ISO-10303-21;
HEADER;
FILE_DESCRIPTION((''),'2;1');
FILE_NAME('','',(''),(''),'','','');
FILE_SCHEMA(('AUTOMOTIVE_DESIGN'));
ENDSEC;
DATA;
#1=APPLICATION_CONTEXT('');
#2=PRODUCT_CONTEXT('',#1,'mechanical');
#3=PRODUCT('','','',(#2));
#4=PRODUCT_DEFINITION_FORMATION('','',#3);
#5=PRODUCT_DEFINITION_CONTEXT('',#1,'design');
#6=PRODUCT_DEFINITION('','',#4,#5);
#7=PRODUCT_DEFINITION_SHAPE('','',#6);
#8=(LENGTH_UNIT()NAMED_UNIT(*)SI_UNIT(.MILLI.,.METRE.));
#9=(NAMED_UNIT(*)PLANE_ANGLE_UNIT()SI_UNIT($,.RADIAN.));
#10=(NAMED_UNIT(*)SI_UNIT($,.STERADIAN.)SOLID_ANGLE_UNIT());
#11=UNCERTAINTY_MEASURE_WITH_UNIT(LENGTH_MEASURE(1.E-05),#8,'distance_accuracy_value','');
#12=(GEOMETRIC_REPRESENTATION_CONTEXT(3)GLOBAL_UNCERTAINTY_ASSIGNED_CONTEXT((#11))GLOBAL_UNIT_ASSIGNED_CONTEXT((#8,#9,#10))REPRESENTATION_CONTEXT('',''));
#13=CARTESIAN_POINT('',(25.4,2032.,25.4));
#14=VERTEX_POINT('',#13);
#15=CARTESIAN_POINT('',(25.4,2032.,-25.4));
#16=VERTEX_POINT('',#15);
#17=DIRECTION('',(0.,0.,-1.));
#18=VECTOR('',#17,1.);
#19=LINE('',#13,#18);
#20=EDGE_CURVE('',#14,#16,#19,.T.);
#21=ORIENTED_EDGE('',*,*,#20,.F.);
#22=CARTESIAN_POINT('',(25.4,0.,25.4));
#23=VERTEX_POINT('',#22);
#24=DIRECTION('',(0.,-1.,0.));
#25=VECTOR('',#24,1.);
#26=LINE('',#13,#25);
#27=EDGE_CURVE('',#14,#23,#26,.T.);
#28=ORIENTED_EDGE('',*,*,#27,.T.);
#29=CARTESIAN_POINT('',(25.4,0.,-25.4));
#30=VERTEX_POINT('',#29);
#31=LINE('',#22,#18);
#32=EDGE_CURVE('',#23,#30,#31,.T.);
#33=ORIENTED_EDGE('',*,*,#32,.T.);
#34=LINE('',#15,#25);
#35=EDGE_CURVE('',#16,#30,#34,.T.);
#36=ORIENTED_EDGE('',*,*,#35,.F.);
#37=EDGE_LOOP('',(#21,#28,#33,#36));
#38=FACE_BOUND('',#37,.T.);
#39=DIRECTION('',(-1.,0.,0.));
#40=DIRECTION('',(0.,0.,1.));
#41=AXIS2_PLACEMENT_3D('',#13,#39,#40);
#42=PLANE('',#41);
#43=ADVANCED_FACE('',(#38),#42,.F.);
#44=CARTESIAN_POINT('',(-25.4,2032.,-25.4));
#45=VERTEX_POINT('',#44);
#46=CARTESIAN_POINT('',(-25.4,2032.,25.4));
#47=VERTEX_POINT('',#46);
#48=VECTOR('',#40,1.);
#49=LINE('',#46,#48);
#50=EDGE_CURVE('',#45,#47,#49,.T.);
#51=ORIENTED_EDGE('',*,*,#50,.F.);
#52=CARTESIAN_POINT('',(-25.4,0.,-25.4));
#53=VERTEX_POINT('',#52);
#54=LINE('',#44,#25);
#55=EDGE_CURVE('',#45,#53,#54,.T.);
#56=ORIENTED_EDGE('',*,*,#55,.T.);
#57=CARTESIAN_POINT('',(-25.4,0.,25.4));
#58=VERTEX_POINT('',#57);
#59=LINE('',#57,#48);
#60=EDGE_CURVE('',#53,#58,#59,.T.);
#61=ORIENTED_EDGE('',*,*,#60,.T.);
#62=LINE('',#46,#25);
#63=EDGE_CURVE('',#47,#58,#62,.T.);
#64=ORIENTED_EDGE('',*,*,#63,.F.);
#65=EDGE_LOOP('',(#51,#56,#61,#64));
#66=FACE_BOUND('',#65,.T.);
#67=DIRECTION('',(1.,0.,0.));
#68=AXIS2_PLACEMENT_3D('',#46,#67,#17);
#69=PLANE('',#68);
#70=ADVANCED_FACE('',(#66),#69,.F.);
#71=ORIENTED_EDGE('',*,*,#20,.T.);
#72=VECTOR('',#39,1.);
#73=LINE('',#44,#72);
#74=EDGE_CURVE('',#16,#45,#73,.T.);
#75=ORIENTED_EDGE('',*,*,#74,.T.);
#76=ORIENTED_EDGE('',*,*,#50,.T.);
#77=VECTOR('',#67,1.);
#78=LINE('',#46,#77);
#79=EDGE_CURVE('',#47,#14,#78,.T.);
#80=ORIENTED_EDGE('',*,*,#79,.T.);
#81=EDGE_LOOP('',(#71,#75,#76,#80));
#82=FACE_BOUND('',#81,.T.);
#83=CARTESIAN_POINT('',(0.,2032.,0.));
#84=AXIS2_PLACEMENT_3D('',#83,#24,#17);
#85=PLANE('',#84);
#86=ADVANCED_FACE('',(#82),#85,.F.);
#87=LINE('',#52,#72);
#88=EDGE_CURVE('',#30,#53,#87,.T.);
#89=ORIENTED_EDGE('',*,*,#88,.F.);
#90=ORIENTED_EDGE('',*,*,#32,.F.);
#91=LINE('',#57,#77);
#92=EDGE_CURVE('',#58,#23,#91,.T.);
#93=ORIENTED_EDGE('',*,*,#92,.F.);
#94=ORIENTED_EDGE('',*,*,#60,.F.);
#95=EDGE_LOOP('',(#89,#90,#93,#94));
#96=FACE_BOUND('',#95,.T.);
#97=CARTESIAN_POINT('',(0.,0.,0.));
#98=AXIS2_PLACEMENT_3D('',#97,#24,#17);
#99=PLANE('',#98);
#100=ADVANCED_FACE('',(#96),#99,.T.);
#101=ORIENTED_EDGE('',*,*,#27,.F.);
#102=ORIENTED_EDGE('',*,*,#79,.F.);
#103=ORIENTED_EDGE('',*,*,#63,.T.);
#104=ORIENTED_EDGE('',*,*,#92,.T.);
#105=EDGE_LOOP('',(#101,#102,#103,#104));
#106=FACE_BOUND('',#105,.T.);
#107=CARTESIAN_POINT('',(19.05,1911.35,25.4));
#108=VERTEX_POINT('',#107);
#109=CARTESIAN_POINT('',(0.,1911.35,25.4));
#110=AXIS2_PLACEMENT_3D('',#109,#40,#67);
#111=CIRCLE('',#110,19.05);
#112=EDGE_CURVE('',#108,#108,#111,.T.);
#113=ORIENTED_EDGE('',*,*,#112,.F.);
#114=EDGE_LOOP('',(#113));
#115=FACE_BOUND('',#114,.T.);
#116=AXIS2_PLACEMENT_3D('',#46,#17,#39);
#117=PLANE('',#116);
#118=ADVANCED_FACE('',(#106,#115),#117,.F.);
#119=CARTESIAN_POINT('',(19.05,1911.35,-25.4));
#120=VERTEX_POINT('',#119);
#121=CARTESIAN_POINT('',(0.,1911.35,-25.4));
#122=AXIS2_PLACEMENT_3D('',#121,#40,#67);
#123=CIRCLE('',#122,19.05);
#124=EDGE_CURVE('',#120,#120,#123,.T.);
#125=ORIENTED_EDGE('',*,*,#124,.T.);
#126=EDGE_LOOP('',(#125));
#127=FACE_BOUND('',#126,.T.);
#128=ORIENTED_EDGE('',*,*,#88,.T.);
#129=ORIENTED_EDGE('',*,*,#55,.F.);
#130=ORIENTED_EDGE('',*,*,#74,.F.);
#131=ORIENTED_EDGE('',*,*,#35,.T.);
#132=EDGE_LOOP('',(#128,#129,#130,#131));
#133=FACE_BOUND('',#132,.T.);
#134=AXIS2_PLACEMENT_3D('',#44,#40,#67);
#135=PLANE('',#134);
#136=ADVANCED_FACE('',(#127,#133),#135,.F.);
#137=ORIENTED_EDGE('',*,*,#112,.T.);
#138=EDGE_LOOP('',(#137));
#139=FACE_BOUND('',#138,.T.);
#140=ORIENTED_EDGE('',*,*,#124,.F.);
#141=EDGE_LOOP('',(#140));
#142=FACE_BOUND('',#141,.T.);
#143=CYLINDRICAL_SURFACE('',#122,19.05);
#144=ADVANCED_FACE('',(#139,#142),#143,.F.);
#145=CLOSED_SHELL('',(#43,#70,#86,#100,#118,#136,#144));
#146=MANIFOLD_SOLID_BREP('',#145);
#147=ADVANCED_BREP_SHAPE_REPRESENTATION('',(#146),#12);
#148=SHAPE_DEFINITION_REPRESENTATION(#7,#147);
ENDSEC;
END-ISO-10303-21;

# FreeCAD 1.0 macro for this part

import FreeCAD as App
import Part
import Sketcher
from FreeCAD import Vector
Q = App.Units.Quantity


def add_polygon(sketch, points):
    """Adds a closed chain of lines whose ends are joined by coincident constraints."""
    first, n = sketch.GeometryCount, len(points)
    for a, b in zip(points, points[1:] + points[:1]):
        sketch.addGeometry(Part.LineSegment(App.Vector(*a, 0), App.Vector(*b, 0)), False)
    for i in range(n):
        sketch.addConstraint(Sketcher.Constraint("Coincident", first + i, 2, first + (i + 1) % n, 1))

doc = App.newDocument("Part")
params = doc.addObject("Spreadsheet::Sheet", "Params")
for row, (alias, value) in enumerate([
    ("sketch1_width", "2 in"),
    ("pad1_length", "80 in"),
    ("sketch2_diameter", "1.5 in"),
], start=1):
    params.set(f"A{row}", alias)
    params.set(f"B{row}", "=" + value)
    params.setAlias(f"B{row}", alias)

body = doc.addObject("PartDesign::Body", "Body")

# Sketch on XZ plane
sketch1 = body.newObject("Sketcher::SketchObject", "Sketch")
sketch1.AttachmentSupport = (doc.getObject("XZ_Plane"), [""])
sketch1.MapMode = "FlatFace"
add_polygon(sketch1, [(-25, -25), (-25, 25), (25, 25), (25, -25)])  # lines 0-3
sketch1.addConstraint(Sketcher.Constraint("Vertical", 0))
sketch1.addConstraint(Sketcher.Constraint("Horizontal", 1))
sketch1.addConstraint(Sketcher.Constraint("Vertical", 2))
sketch1.addConstraint(Sketcher.Constraint("Horizontal", 3))
sketch1.addConstraint(Sketcher.Constraint("Symmetric", 0, 2, 2, 2, -1, 1))
sketch1.addConstraint(Sketcher.Constraint("Equal", 3, 0))
sketch1.addConstraint(Sketcher.Constraint("DistanceX", 1, 1, 1, 2, Q("2 in")))
sketch1.setExpression("Constraints[10]", "Params.sketch1_width")
pad1 = body.newObject("PartDesign::Pad", "Pad")
pad1.Profile = sketch1
pad1.setExpression("Length", "Params.pad1_length")
pad1.Reversed = True

# Sketch on XY plane
sketch2 = body.newObject("Sketcher::SketchObject", "Sketch001")
sketch2.AttachmentSupport = (doc.getObject("XY_Plane"), [""])
sketch2.MapMode = "FlatFace"
sketch2.AttachmentOffset = App.Placement(Vector(0, 0, 1 * 25.4), App.Rotation())
sketch2.addGeometry(Part.Circle(Vector(0, 1911, 0), Vector(0, 0, 1), 19), False)
sketch2.addConstraint(Sketcher.Constraint("PointOnObject", 0, 3, -2))
sketch2.addConstraint(Sketcher.Constraint("Diameter", 0, Q("1.5 in")))
sketch2.addConstraint(Sketcher.Constraint("DistanceY", -1, 1, 0, 3, Q("75.25 in")))
sketch2.setExpression("Constraints[1]", "Params.sketch2_diameter")
pocket1 = body.newObject("PartDesign::Pocket", "Pocket")
pocket1.Profile = sketch2
pocket1.Type = "ThroughAll"

doc.recompute()
